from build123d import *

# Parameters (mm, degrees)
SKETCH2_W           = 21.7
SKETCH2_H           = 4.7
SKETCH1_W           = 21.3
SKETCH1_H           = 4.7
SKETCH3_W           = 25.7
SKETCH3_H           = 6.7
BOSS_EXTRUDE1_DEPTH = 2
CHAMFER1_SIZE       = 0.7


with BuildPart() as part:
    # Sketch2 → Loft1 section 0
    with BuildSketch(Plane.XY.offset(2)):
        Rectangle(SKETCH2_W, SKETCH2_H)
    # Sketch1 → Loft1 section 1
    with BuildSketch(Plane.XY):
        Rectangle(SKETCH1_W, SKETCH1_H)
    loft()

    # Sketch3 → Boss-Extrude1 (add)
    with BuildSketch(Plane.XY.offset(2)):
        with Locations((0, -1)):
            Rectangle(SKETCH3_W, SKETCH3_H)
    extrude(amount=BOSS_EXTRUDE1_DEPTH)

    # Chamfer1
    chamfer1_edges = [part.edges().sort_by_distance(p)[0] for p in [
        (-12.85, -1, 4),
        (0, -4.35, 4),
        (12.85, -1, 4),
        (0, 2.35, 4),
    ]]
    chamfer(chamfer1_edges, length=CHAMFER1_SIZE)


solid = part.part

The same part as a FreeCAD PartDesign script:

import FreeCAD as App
import Part
import Sketcher


def edges_at(feature, points):
    """Names of the edges that pass closest to the given points."""
    edges = feature.Shape.Edges
    near = lambda p: min(range(len(edges)), key=lambda i: edges[i].distToShape(Part.Vertex(*p))[0])
    return sorted({f"Edge{near(p) + 1}" for p in points})

doc = App.newDocument("Part")
params = doc.addObject("Spreadsheet::Sheet", "Params")
for row, (alias, value) in enumerate([
    ("sketch1_width", "21.7 mm"),
    ("sketch1_height", "4.7 mm"),
    ("sketch2_width", "21.3 mm"),
    ("sketch2_height", "4.7 mm"),
    ("sketch3_width", "25.7 mm"),
    ("sketch3_height", "6.7 mm"),
    ("pad1_length", "2 mm"),
    ("chamfer_size", "0.7 mm"),
], start=1):
    params.set(f"A{row}", alias)
    params.set(f"B{row}", "=" + value)
    params.setAlias(f"B{row}", alias)

body = doc.addObject("PartDesign::Body", "Body")

# Sketch on XY plane
sketch1 = doc.addObject("Sketcher::SketchObject", "Sketch")
body.addObject(sketch1)
sketch1.AttachmentSupport = (doc.XY_Plane, [""])
sketch1.MapMode = "FlatFace"
sketch1.AttachmentOffset = App.Placement(App.Vector(0, 0, 2), App.Rotation())
sketch1.addGeometry([
    Part.LineSegment(App.Vector(-10.8, 2.4, 0), App.Vector(-10.8, -2.4, 0)),
    Part.LineSegment(App.Vector(-10.8, -2.4, 0), App.Vector(10.8, -2.4, 0)),
    Part.LineSegment(App.Vector(10.8, -2.4, 0), App.Vector(10.8, 2.4, 0)),
    Part.LineSegment(App.Vector(10.8, 2.4, 0), App.Vector(-10.8, 2.4, 0)),
], False)
sketch1.addConstraint([
    Sketcher.Constraint("Coincident", 0, 2, 1, 1),
    Sketcher.Constraint("Coincident", 1, 2, 2, 1),
    Sketcher.Constraint("Coincident", 2, 2, 3, 1),
    Sketcher.Constraint("Coincident", 3, 2, 0, 1),
    Sketcher.Constraint("Vertical", 0),
    Sketcher.Constraint("Horizontal", 1),
    Sketcher.Constraint("Vertical", 2),
    Sketcher.Constraint("Horizontal", 3),
    Sketcher.Constraint("Symmetric", 0, 2, 2, 2, -1, 1),
    Sketcher.Constraint("DistanceX", 1, 1, 1, 2, 21.7),
    Sketcher.Constraint("DistanceY", 0, 2, 0, 1, 4.7),
])
sketch1.setExpression("Constraints[9]", "Params.sketch1_width")
sketch1.setExpression("Constraints[10]", "Params.sketch1_height")

# Sketch on XY plane
sketch2 = doc.addObject("Sketcher::SketchObject", "Sketch001")
body.addObject(sketch2)
sketch2.AttachmentSupport = (doc.XY_Plane, [""])
sketch2.MapMode = "FlatFace"
sketch2.addGeometry([
    Part.LineSegment(App.Vector(-10.7, 2.4, 0), App.Vector(-10.7, -2.4, 0)),
    Part.LineSegment(App.Vector(-10.7, -2.4, 0), App.Vector(10.7, -2.4, 0)),
    Part.LineSegment(App.Vector(10.7, -2.4, 0), App.Vector(10.7, 2.4, 0)),
    Part.LineSegment(App.Vector(10.7, 2.4, 0), App.Vector(-10.7, 2.4, 0)),
], False)
sketch2.addConstraint([
    Sketcher.Constraint("Coincident", 0, 2, 1, 1),
    Sketcher.Constraint("Coincident", 1, 2, 2, 1),
    Sketcher.Constraint("Coincident", 2, 2, 3, 1),
    Sketcher.Constraint("Coincident", 3, 2, 0, 1),
    Sketcher.Constraint("Vertical", 0),
    Sketcher.Constraint("Horizontal", 1),
    Sketcher.Constraint("Vertical", 2),
    Sketcher.Constraint("Horizontal", 3),
    Sketcher.Constraint("Symmetric", 0, 2, 2, 2, -1, 1),
    Sketcher.Constraint("DistanceX", 1, 1, 1, 2, 21.3),
    Sketcher.Constraint("DistanceY", 0, 2, 0, 1, 4.7),
])
sketch2.setExpression("Constraints[9]", "Params.sketch2_width")
sketch2.setExpression("Constraints[10]", "Params.sketch2_height")

additiveloft = doc.addObject("PartDesign::AdditiveLoft", "AdditiveLoft")
body.addObject(additiveloft)
additiveloft.Profile = sketch1
additiveloft.Sections = [sketch2]

# Sketch on XY plane
sketch3 = doc.addObject("Sketcher::SketchObject", "Sketch002")
body.addObject(sketch3)
sketch3.AttachmentSupport = (doc.XY_Plane, [""])
sketch3.MapMode = "FlatFace"
sketch3.AttachmentOffset = App.Placement(App.Vector(0, 0, 2), App.Rotation())
sketch3.addGeometry([
    Part.LineSegment(App.Vector(-13, 2, 0), App.Vector(-13, -4, 0)),
    Part.LineSegment(App.Vector(-13, -4, 0), App.Vector(13, -4, 0)),
    Part.LineSegment(App.Vector(13, -4, 0), App.Vector(13, 2, 0)),
    Part.LineSegment(App.Vector(13, 2, 0), App.Vector(-13, 2, 0)),
], False)
sketch3.addConstraint([
    Sketcher.Constraint("Coincident", 0, 2, 1, 1),
    Sketcher.Constraint("Coincident", 1, 2, 2, 1),
    Sketcher.Constraint("Coincident", 2, 2, 3, 1),
    Sketcher.Constraint("Coincident", 3, 2, 0, 1),
    Sketcher.Constraint("Vertical", 0),
    Sketcher.Constraint("Horizontal", 1),
    Sketcher.Constraint("Vertical", 2),
    Sketcher.Constraint("Horizontal", 3),
    Sketcher.Constraint("DistanceX", 1, 1, 1, 2, 25.7),
    Sketcher.Constraint("DistanceY", 0, 2, 0, 1, 6.7),
    Sketcher.Constraint("DistanceX", 0, 2, -1, 1, 12.85),
    Sketcher.Constraint("DistanceY", 0, 2, -1, 1, 4.35),
])
sketch3.setExpression("Constraints[8]", "Params.sketch3_width")
sketch3.setExpression("Constraints[9]", "Params.sketch3_height")
pad1 = doc.addObject("PartDesign::Pad", "Pad")
body.addObject(pad1)
pad1.Profile = sketch3
pad1.setExpression("Length", "Params.pad1_length")
doc.recompute()

chamfer = doc.addObject("PartDesign::Chamfer", "Chamfer")
body.addObject(chamfer)
chamfer.Base = (pad1, edges_at(pad1, [
    (-12.85, -1, 4),
    (0, -4.35, 4),
    (12.85, -1, 4),
    (0, 2.35, 4),
]))
chamfer.setExpression("Size", "Params.chamfer_size")

doc.recompute()
